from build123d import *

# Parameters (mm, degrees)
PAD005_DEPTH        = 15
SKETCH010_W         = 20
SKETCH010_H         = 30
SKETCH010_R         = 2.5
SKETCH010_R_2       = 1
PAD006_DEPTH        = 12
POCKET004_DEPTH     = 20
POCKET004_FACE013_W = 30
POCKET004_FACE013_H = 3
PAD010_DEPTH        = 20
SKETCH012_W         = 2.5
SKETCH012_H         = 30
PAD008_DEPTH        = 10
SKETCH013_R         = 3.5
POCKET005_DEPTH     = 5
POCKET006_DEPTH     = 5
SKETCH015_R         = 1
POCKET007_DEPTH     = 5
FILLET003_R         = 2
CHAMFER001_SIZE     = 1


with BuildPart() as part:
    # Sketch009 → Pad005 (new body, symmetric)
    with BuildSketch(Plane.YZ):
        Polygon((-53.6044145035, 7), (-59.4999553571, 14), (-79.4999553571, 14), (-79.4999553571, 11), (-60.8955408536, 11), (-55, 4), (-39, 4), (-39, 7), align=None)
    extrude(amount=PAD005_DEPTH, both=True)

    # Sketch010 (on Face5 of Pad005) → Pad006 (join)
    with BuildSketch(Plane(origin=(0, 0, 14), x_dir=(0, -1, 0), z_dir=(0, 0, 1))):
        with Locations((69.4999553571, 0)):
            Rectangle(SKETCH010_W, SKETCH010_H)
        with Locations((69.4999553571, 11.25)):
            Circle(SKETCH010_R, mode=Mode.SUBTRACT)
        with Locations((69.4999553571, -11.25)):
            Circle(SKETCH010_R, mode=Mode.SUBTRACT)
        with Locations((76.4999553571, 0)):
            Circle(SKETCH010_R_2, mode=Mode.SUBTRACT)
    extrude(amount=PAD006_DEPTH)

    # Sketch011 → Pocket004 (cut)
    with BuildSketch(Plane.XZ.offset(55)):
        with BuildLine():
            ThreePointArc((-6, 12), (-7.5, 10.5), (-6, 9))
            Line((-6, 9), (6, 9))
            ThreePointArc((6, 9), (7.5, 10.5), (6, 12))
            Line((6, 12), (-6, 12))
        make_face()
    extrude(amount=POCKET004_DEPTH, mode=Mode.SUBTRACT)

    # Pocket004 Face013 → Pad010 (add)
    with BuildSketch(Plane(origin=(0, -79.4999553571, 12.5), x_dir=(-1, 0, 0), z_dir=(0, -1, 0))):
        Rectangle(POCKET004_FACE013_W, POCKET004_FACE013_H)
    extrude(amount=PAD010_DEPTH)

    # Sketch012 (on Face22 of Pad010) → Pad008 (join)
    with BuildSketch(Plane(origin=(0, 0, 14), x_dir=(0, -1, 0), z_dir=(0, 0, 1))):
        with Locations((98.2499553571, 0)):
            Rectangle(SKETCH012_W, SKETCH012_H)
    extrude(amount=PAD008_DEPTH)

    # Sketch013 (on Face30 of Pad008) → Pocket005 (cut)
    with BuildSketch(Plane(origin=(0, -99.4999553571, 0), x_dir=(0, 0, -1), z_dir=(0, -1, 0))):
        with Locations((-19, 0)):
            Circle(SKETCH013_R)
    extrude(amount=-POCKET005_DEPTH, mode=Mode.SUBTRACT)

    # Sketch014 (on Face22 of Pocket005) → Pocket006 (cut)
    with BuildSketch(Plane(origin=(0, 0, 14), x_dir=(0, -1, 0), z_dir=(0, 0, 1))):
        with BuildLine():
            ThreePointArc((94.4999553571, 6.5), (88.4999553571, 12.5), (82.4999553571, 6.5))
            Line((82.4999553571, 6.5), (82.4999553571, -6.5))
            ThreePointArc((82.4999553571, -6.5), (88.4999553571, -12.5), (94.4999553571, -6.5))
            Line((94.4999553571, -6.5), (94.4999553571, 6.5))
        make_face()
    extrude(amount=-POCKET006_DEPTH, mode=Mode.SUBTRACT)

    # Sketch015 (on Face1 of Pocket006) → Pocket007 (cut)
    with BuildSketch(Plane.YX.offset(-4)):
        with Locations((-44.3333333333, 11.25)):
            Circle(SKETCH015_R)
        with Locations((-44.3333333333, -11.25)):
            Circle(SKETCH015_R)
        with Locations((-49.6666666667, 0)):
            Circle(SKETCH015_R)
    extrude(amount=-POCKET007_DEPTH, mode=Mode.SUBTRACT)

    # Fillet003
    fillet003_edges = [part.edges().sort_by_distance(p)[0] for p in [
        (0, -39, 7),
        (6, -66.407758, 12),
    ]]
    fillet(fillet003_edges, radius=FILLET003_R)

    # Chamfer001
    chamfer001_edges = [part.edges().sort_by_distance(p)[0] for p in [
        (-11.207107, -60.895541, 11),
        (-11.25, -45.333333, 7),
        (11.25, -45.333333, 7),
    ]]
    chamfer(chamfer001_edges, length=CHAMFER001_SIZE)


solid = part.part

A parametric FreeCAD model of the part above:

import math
import FreeCAD as App
import Part
import Sketcher


def edges_at(feature, points):
    """Names of the edges that pass closest to the given points."""
    edges = feature.Shape.Edges
    near = lambda p: min(range(len(edges)), key=lambda i: edges[i].distToShape(Part.Vertex(*p))[0])
    return sorted({f"Edge{near(p) + 1}" for p in points})


def add_polygon(sketch, points):
    """Adds a closed chain of lines whose ends are joined by coincident constraints."""
    first, n = sketch.GeometryCount, len(points)
    for a, b in zip(points, points[1:] + points[:1]):
        sketch.addGeometry(Part.LineSegment(App.Vector(*a, 0), App.Vector(*b, 0)), False)
    for i in range(n):
        sketch.addConstraint(Sketcher.Constraint("Coincident", first + i, 2, first + (i + 1) % n, 1))

doc = App.newDocument("Part")
body = doc.addObject("PartDesign::Body", "Body")

# Sketch on YZ plane
sketch1 = doc.addObject("Sketcher::SketchObject", "Sketch")
body.addObject(sketch1)
sketch1.AttachmentSupport = (doc.YZ_Plane, [""])
sketch1.MapMode = "FlatFace"
add_polygon(sketch1, [(-53.6, 7), (-59.5, 14), (-79.5, 14), (-79.5, 11), (-60.9, 11), (-55, 4), (-39, 4), (-39, 7)])  # lines 0-7
sketch1.addConstraint(Sketcher.Constraint("Horizontal", 1))
sketch1.addConstraint(Sketcher.Constraint("Vertical", 2))
sketch1.addConstraint(Sketcher.Constraint("Horizontal", 3))
sketch1.addConstraint(Sketcher.Constraint("Horizontal", 5))
sketch1.addConstraint(Sketcher.Constraint("Vertical", 6))
sketch1.addConstraint(Sketcher.Constraint("Horizontal", 7))
sketch1.addConstraint(Sketcher.Constraint("Parallel", 0, 4))
sketch1.addConstraint(Sketcher.Constraint("Equal", 2, 6))
sketch1.addConstraint(Sketcher.Constraint("DistanceX", 1, 2, 1, 1, 20.0))
sketch1.addConstraint(Sketcher.Constraint("DistanceX", 5, 1, 5, 2, 16.0))
sketch1.addConstraint(Sketcher.Constraint("DistanceY", 2, 2, 2, 1, 3.0))
sketch1.addConstraint(Sketcher.Constraint("DistanceY", -1, 1, 0, 2, 14.0))
sketch1.addConstraint(Sketcher.Constraint("DistanceX", 4, 2, -1, 1, 55.0))
sketch1.addConstraint(Sketcher.Constraint("DistanceY", -1, 1, 4, 2, 4.0))
sketch1.addConstraint(Sketcher.Constraint("DistanceX", 3, 1, 3, 2, 18.604415))
sketch1.addConstraint(Sketcher.Constraint("DistanceX", 3, 2, -1, 1, 60.895541))
pad1 = doc.addObject("PartDesign::Pad", "Pad")
body.addObject(pad1)
pad1.Profile = sketch1
pad1.Length = 30
pad1.Midplane = True

# Sketch on XY plane
sketch2 = doc.addObject("Sketcher::SketchObject", "Sketch001")
body.addObject(sketch2)
sketch2.AttachmentSupport = (doc.XY_Plane, [""])
sketch2.MapMode = "FlatFace"
sketch2.AttachmentOffset = App.Placement(App.Vector(0, 0, 14), App.Rotation())
add_polygon(sketch2, [(15, -59.499955), (-15, -59.499955), (-15, -79.499955), (15, -79.499955)])  # lines 0-3
sketch2.addGeometry(Part.Circle(App.Vector(-11.25, -69.499955, 0), App.Vector(0, 0, 1), 2.5), False)  # 4
sketch2.addGeometry(Part.Circle(App.Vector(11.25, -69.499955, 0), App.Vector(0, 0, 1), 2.5), False)  # 5
sketch2.addGeometry(Part.Circle(App.Vector(0, -76.499955, 0), App.Vector(0, 0, 1), 1), False)  # 6
sketch2.addConstraint(Sketcher.Constraint("Horizontal", 0))
sketch2.addConstraint(Sketcher.Constraint("Vertical", 1))
sketch2.addConstraint(Sketcher.Constraint("Horizontal", 2))
sketch2.addConstraint(Sketcher.Constraint("Vertical", 3))
sketch2.addConstraint(Sketcher.Constraint("Equal", 4, 5))
sketch2.addConstraint(Sketcher.Constraint("Symmetric", 4, 3, 5, 3, -2))
sketch2.addConstraint(Sketcher.Constraint("PointOnObject", 6, 3, -2))
sketch2.addConstraint(Sketcher.Constraint("Diameter", 4, 5.0))
sketch2.addConstraint(Sketcher.Constraint("Diameter", 6, 2.0))
sketch2.addConstraint(Sketcher.Constraint("DistanceX", 0, 2, 0, 1, 30.0))
sketch2.addConstraint(Sketcher.Constraint("DistanceY", 1, 2, 1, 1, 20.0))
sketch2.addConstraint(Sketcher.Constraint("DistanceX", 0, 2, -1, 1, 15.0))
sketch2.addConstraint(Sketcher.Constraint("DistanceY", 6, 3, 4, 3, 7.0))
sketch2.addConstraint(Sketcher.Constraint("DistanceY", 4, 3, 0, 2, 10.0))
sketch2.addConstraint(Sketcher.Constraint("DistanceX", 4, 3, 5, 3, 22.5))
sketch2.addConstraint(Sketcher.Constraint("DistanceY", 4, 3, -1, 1, 69.499955))
pad2 = doc.addObject("PartDesign::Pad", "Pad001")
body.addObject(pad2)
pad2.Profile = sketch2
pad2.Length = 12

# Sketch on XZ plane
sketch3 = doc.addObject("Sketcher::SketchObject", "Sketch002")
body.addObject(sketch3)
sketch3.AttachmentSupport = (doc.XZ_Plane, [""])
sketch3.MapMode = "FlatFace"
sketch3.AttachmentOffset = App.Placement(App.Vector(0, 0, 55), App.Rotation())
sketch3.addGeometry(Part.ArcOfCircle(Part.Circle(App.Vector(-6, 10.5, 0), App.Vector(0, 0, 1), 1.5), math.radians(90), math.radians(270)), False)
sketch3.addGeometry(Part.LineSegment(App.Vector(-6, 9, 0), App.Vector(6, 9, 0)), False)
sketch3.addGeometry(Part.ArcOfCircle(Part.Circle(App.Vector(6, 10.5, 0), App.Vector(0, 0, 1), 1.5), math.radians(-90), math.radians(90)), False)
sketch3.addGeometry(Part.LineSegment(App.Vector(6, 12, 0), App.Vector(-6, 12, 0)), False)
sketch3.addConstraint(Sketcher.Constraint("Tangent", 0, 2, 1, 1))
sketch3.addConstraint(Sketcher.Constraint("Tangent", 1, 2, 2, 1))
sketch3.addConstraint(Sketcher.Constraint("Tangent", 2, 2, 3, 1))
sketch3.addConstraint(Sketcher.Constraint("Tangent", 3, 2, 0, 1))
sketch3.addConstraint(Sketcher.Constraint("Horizontal", 1))
sketch3.addConstraint(Sketcher.Constraint("Horizontal", 3))
sketch3.addConstraint(Sketcher.Constraint("Radius", 0, 1.5))
sketch3.addConstraint(Sketcher.Constraint("DistanceX", 1, 1, 1, 2, 12.0))
sketch3.addConstraint(Sketcher.Constraint("DistanceX", 0, 3, -1, 1, 6.0))
sketch3.addConstraint(Sketcher.Constraint("DistanceY", -1, 1, 0, 2, 9.0))
pocket1 = doc.addObject("PartDesign::Pocket", "Pocket")
body.addObject(pocket1)
pocket1.Profile = sketch3
pocket1.Length = 20
pocket1.Reversed = True

# Sketch on XZ plane
sketch4 = doc.addObject("Sketcher::SketchObject", "Sketch003")
body.addObject(sketch4)
sketch4.AttachmentSupport = (doc.XZ_Plane, [""])
sketch4.MapMode = "FlatFace"
sketch4.AttachmentOffset = App.Placement(App.Vector(0, 0, 79.499955), App.Rotation())
add_polygon(sketch4, [(15, 11), (15, 14), (-15, 14), (-15, 11)])  # lines 0-3
sketch4.addConstraint(Sketcher.Constraint("Vertical", 0))
sketch4.addConstraint(Sketcher.Constraint("Horizontal", 1))
sketch4.addConstraint(Sketcher.Constraint("Vertical", 2))
sketch4.addConstraint(Sketcher.Constraint("Horizontal", 3))
sketch4.addConstraint(Sketcher.Constraint("DistanceX", 1, 2, 1, 1, 30.0))
sketch4.addConstraint(Sketcher.Constraint("DistanceY", 0, 1, 0, 2, 3.0))
sketch4.addConstraint(Sketcher.Constraint("DistanceX", -1, 1, 0, 2, 15.0))
sketch4.addConstraint(Sketcher.Constraint("DistanceY", -1, 1, 0, 2, 14.0))
pad3 = doc.addObject("PartDesign::Pad", "Pad002")
body.addObject(pad3)
pad3.Profile = sketch4
pad3.Length = 20

# Sketch on XY plane
sketch5 = doc.addObject("Sketcher::SketchObject", "Sketch004")
body.addObject(sketch5)
sketch5.AttachmentSupport = (doc.XY_Plane, [""])
sketch5.MapMode = "FlatFace"
sketch5.AttachmentOffset = App.Placement(App.Vector(0, 0, 14), App.Rotation())
add_polygon(sketch5, [(15, -96.999955), (-15, -96.999955), (-15, -99.499955), (15, -99.499955)])  # lines 0-3
sketch5.addConstraint(Sketcher.Constraint("Horizontal", 0))
sketch5.addConstraint(Sketcher.Constraint("Vertical", 1))
sketch5.addConstraint(Sketcher.Constraint("Horizontal", 2))
sketch5.addConstraint(Sketcher.Constraint("Vertical", 3))
sketch5.addConstraint(Sketcher.Constraint("DistanceX", 0, 2, 0, 1, 30.0))
sketch5.addConstraint(Sketcher.Constraint("DistanceY", 1, 2, 1, 1, 2.5))
sketch5.addConstraint(Sketcher.Constraint("DistanceX", 0, 2, -1, 1, 15.0))
sketch5.addConstraint(Sketcher.Constraint("DistanceY", 0, 2, -1, 1, 96.999955))
pad4 = doc.addObject("PartDesign::Pad", "Pad003")
body.addObject(pad4)
pad4.Profile = sketch5
pad4.Length = 10

# Sketch on XZ plane
sketch6 = doc.addObject("Sketcher::SketchObject", "Sketch005")
body.addObject(sketch6)
sketch6.AttachmentSupport = (doc.XZ_Plane, [""])
sketch6.MapMode = "FlatFace"
sketch6.AttachmentOffset = App.Placement(App.Vector(0, 0, 99.499955), App.Rotation())
sketch6.addGeometry(Part.Circle(App.Vector(0, 19, 0), App.Vector(0, 0, 1), 3.5), False)
sketch6.addConstraint(Sketcher.Constraint("PointOnObject", 0, 3, -2))
sketch6.addConstraint(Sketcher.Constraint("Diameter", 0, 7.0))
sketch6.addConstraint(Sketcher.Constraint("DistanceY", -1, 1, 0, 3, 19.0))
pocket2 = doc.addObject("PartDesign::Pocket", "Pocket001")
body.addObject(pocket2)
pocket2.Profile = sketch6
pocket2.Length = 5

# Sketch on XY plane
sketch7 = doc.addObject("Sketcher::SketchObject", "Sketch006")
body.addObject(sketch7)
sketch7.AttachmentSupport = (doc.XY_Plane, [""])
sketch7.MapMode = "FlatFace"
sketch7.AttachmentOffset = App.Placement(App.Vector(0, 0, 14), App.Rotation())
sketch7.addGeometry(Part.ArcOfCircle(Part.Circle(App.Vector(6, -88, 0), App.Vector(0, 0, 1), 6), math.radians(-90), math.radians(90)), False)
sketch7.addGeometry(Part.LineSegment(App.Vector(6, -82, 0), App.Vector(-6, -82, 0)), False)
sketch7.addGeometry(Part.ArcOfCircle(Part.Circle(App.Vector(-6, -88, 0), App.Vector(0, 0, 1), 6), math.radians(90), math.radians(270)), False)
sketch7.addGeometry(Part.LineSegment(App.Vector(-6, -94, 0), App.Vector(6, -94, 0)), False)
sketch7.addConstraint(Sketcher.Constraint("Tangent", 0, 2, 1, 1))
sketch7.addConstraint(Sketcher.Constraint("Tangent", 1, 2, 2, 1))
sketch7.addConstraint(Sketcher.Constraint("Tangent", 2, 2, 3, 1))
sketch7.addConstraint(Sketcher.Constraint("Tangent", 3, 2, 0, 1))
sketch7.addConstraint(Sketcher.Constraint("Horizontal", 1))
sketch7.addConstraint(Sketcher.Constraint("Horizontal", 3))
sketch7.addConstraint(Sketcher.Constraint("Radius", 0, 6.0))
sketch7.addConstraint(Sketcher.Constraint("DistanceX", 1, 2, 1, 1, 13.0))
sketch7.addConstraint(Sketcher.Constraint("DistanceX", -1, 1, 0, 3, 6.5))
sketch7.addConstraint(Sketcher.Constraint("DistanceY", 0, 3, -1, 1, 88.499955))
pocket3 = doc.addObject("PartDesign::Pocket", "Pocket002")
body.addObject(pocket3)
pocket3.Profile = sketch7
pocket3.Length = 5

# Sketch on XY plane
sketch8 = doc.addObject("Sketcher::SketchObject", "Sketch007")
body.addObject(sketch8)
sketch8.AttachmentSupport = (doc.XY_Plane, [""])
sketch8.MapMode = "FlatFace"
sketch8.AttachmentOffset = App.Placement(App.Vector(0, 0, 4), App.Rotation())
sketch8.addGeometry(Part.Circle(App.Vector(11.2, -44.3, 0), App.Vector(0, 0, 1), 1), False)
sketch8.addGeometry(Part.Circle(App.Vector(-11.2, -44.3, 0), App.Vector(0, 0, 1), 1), False)
sketch8.addGeometry(Part.Circle(App.Vector(0, -49.7, 0), App.Vector(0, 0, 1), 1), False)
sketch8.addConstraint(Sketcher.Constraint("Equal", 0, 1))
sketch8.addConstraint(Sketcher.Constraint("Equal", 1, 2))
sketch8.addConstraint(Sketcher.Constraint("Symmetric", 0, 3, 1, 3, -2))
sketch8.addConstraint(Sketcher.Constraint("PointOnObject", 2, 3, -2))
sketch8.addConstraint(Sketcher.Constraint("Diameter", 0, 2.0))
sketch8.addConstraint(Sketcher.Constraint("DistanceX", 1, 3, 0, 3, 22.5))
sketch8.addConstraint(Sketcher.Constraint("DistanceY", 0, 3, -1, 1, 44.333333))
sketch8.addConstraint(Sketcher.Constraint("DistanceY", 2, 3, -1, 1, 49.666667))
pocket4 = doc.addObject("PartDesign::Pocket", "Pocket003")
body.addObject(pocket4)
pocket4.Profile = sketch8
pocket4.Length = 5
pocket4.Reversed = True
doc.recompute()

fillet = doc.addObject("PartDesign::Fillet", "Fillet")
body.addObject(fillet)
fillet.Base = (pocket4, edges_at(pocket4, [(0, -39, 7), (6, -66.408, 12)]))
fillet.Radius = 2
doc.recompute()

chamfer = doc.addObject("PartDesign::Chamfer", "Chamfer")
body.addObject(chamfer)
chamfer.Base = (fillet, edges_at(fillet, [(-11.207, -60.896, 11), (-11.25, -45.333, 7), (11.25, -45.333, 7)]))
chamfer.Size = 1

doc.recompute()
